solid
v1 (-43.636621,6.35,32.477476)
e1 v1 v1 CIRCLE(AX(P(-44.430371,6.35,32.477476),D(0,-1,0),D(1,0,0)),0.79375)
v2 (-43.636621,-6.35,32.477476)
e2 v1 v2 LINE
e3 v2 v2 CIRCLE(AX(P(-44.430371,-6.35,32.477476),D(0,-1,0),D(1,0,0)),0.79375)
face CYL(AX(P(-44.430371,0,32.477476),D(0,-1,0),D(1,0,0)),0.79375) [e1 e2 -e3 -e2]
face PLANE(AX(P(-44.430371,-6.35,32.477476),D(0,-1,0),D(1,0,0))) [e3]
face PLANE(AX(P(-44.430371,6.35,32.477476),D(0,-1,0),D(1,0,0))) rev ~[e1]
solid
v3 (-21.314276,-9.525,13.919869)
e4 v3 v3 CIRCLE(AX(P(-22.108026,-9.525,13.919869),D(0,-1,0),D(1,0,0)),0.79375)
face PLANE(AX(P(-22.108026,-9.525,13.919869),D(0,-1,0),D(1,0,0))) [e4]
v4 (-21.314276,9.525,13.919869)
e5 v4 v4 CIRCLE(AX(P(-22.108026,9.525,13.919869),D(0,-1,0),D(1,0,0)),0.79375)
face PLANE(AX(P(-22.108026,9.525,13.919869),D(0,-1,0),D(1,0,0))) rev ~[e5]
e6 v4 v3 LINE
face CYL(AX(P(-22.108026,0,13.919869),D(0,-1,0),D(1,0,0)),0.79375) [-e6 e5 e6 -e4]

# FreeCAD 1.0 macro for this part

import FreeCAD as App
import Part
import Sketcher
from FreeCAD import Vector
Q = App.Units.Quantity

doc = App.newDocument("Part")
params = doc.addObject("Spreadsheet::Sheet", "Params")
for row, (alias, value) in enumerate([
    ("sketch1_diameter", "0.0625 in"),
    ("pad1_length", "0.75 in"),
    ("sketch2_diameter", "0.0625 in"),
    ("pad2_length", "0.5 in"),
], start=1):
    params.set(f"A{row}", alias)
    params.set(f"B{row}", "=" + value)
    params.setAlias(f"B{row}", alias)

body = doc.addObject("PartDesign::Body", "Body")

# Sketch on XZ plane
sketch1 = body.newObject("Sketcher::SketchObject", "Sketch")
sketch1.AttachmentSupport = (doc.getObject("XZ_Plane"), [""])
sketch1.MapMode = "FlatFace"
sketch1.addGeometry(Part.Circle(Vector(-22.1, 13.9, 0), Vector(0, 0, 1), 0.8), False)
sketch1.addConstraint([
    Sketcher.Constraint("Diameter", 0, Q("0.0625 in")),
    Sketcher.Constraint("DistanceY", -1, 1, 0, 3, Q("13.919869 mm")),
    Sketcher.Constraint("DistanceX", 0, 3, -1, 1, Q("22.108026 mm")),
])
sketch1.setExpression("Constraints[0]", "Params.sketch1_diameter")
pad1 = body.newObject("PartDesign::Pad", "Pad")
pad1.Profile = sketch1
pad1.setExpression("Length", "Params.pad1_length")
pad1.Midplane = True
body2 = doc.addObject("PartDesign::Body", "Body001")

# Sketch on XZ plane
sketch2 = body2.newObject("Sketcher::SketchObject", "Sketch001")
sketch2.AttachmentSupport = (doc.getObject("XZ_Plane001"), [""])
sketch2.MapMode = "FlatFace"
sketch2.addGeometry(Part.Circle(Vector(-44.4, 32.5, 0), Vector(0, 0, 1), 0.8), False)
sketch2.addConstraint([
    Sketcher.Constraint("Diameter", 0, Q("0.0625 in")),
    Sketcher.Constraint("DistanceX", 0, 3, -1, 1, Q("44.430371 mm")),
    Sketcher.Constraint("DistanceY", -1, 1, 0, 3, Q("32.477476 mm")),
])
sketch2.setExpression("Constraints[0]", "Params.sketch2_diameter")
pad2 = body2.newObject("PartDesign::Pad", "Pad001")
pad2.Profile = sketch2
pad2.setExpression("Length", "Params.pad2_length")
pad2.Midplane = True

doc.recompute()
